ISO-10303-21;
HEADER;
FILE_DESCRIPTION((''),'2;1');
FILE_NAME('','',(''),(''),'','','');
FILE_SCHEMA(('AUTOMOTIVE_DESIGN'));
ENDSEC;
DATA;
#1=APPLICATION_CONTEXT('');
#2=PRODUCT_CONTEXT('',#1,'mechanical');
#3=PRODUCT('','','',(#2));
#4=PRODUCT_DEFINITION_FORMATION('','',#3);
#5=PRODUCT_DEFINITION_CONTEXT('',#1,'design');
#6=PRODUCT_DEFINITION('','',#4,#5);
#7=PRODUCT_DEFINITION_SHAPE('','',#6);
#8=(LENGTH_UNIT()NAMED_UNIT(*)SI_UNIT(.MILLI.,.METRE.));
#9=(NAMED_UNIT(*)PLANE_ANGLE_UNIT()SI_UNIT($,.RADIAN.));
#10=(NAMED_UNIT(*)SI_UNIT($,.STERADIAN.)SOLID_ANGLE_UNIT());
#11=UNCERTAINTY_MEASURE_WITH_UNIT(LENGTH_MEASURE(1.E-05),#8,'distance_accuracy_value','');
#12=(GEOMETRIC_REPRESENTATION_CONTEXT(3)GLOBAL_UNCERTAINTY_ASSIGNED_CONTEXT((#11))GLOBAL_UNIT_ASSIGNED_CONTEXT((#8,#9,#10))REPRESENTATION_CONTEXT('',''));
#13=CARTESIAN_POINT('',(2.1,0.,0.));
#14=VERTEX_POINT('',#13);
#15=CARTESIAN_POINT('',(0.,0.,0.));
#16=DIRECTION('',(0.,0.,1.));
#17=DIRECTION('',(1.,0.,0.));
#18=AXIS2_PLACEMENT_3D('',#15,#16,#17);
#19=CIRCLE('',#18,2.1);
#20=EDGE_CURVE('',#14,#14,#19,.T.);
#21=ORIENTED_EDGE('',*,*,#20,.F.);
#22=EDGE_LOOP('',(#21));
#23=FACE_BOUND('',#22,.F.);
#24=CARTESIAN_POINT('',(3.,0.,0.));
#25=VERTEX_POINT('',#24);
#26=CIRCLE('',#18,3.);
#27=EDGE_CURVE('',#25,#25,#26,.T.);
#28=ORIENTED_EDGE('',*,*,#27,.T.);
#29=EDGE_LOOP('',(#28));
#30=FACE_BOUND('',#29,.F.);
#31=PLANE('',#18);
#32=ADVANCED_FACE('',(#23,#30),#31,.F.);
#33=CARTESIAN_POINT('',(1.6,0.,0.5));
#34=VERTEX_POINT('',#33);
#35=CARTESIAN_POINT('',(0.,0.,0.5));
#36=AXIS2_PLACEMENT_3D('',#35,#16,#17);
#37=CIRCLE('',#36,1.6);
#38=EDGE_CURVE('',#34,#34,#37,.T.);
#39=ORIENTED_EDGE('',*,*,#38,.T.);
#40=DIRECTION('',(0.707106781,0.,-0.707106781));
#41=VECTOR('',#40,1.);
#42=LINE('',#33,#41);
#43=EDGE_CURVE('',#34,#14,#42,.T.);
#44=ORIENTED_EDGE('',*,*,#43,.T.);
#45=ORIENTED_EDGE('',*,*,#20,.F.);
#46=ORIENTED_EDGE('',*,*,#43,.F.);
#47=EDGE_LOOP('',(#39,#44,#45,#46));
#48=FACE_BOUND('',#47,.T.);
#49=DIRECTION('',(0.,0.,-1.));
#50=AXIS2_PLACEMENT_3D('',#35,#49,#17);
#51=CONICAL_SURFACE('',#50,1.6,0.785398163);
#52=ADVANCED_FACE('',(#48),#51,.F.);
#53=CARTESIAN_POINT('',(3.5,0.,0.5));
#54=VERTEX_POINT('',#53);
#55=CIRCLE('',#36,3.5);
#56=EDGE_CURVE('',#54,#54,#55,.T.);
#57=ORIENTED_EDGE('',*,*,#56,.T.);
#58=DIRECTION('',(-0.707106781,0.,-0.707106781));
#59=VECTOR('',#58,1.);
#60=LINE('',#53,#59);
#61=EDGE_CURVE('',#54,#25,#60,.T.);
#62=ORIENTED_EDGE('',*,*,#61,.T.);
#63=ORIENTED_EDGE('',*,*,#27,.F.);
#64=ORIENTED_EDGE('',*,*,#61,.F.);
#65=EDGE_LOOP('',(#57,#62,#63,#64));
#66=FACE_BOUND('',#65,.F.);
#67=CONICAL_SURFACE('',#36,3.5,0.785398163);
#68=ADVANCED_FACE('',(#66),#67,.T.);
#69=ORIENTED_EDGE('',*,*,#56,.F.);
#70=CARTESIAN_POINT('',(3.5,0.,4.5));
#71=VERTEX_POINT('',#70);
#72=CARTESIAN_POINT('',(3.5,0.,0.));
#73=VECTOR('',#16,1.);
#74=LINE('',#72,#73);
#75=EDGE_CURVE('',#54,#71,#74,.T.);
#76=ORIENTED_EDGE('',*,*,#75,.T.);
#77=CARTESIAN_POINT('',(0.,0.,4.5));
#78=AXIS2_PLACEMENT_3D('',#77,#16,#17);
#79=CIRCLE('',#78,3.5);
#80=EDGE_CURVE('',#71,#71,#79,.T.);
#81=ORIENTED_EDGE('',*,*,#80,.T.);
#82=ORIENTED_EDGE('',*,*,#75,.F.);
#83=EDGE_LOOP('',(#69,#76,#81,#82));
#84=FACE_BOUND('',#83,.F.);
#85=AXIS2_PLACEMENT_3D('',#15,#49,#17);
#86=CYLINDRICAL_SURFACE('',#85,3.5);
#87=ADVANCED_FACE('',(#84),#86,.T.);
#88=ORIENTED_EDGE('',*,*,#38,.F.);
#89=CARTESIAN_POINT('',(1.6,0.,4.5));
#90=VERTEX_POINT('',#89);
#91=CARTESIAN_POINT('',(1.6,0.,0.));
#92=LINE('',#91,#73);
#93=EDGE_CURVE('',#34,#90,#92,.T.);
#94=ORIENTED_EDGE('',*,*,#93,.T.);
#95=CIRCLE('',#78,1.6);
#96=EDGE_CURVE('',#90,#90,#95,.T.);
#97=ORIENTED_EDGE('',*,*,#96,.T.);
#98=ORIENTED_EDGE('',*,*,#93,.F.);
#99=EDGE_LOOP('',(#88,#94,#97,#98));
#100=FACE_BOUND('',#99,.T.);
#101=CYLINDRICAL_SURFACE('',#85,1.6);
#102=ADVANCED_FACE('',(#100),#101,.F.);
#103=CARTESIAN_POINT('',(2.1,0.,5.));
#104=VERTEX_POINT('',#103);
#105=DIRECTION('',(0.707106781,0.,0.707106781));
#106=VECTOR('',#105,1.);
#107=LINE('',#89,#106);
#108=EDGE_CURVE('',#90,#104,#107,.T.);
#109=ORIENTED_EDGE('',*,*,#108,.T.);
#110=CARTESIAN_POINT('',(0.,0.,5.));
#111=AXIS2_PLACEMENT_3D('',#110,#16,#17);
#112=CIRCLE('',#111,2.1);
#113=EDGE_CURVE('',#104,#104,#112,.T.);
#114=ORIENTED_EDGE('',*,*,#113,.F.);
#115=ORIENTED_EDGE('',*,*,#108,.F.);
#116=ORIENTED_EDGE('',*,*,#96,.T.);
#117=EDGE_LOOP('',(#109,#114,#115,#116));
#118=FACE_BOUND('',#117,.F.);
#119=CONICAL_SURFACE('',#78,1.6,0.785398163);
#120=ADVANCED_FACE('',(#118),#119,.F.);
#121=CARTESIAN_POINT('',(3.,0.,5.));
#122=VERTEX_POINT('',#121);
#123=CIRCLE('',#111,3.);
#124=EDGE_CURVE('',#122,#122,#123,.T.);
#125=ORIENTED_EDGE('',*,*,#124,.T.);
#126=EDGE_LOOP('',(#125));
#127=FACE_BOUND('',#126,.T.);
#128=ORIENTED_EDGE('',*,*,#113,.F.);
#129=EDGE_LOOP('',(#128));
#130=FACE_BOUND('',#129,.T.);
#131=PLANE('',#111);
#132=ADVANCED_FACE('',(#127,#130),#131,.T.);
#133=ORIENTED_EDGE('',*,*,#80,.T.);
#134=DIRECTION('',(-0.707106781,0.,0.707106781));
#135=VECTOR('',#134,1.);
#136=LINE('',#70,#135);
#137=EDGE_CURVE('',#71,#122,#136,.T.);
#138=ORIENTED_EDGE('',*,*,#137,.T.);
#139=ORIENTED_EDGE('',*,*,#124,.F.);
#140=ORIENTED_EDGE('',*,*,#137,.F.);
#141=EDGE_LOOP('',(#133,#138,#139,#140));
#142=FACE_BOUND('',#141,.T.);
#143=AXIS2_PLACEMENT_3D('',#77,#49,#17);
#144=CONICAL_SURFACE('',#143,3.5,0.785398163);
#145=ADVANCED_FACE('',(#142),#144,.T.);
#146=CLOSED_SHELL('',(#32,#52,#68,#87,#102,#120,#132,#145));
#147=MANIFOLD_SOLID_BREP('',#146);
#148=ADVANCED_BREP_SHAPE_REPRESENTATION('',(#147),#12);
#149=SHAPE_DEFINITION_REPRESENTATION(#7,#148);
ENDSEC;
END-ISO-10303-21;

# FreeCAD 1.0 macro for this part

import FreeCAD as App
import Part
import Sketcher
Q = App.Units.Quantity


def edges_at(feature, points):
    """Names of the edges that pass closest to the given points."""
    edges = feature.Shape.Edges
    near = lambda p: min(range(len(edges)), key=lambda i: edges[i].distToShape(Part.Vertex(*p))[0])
    return sorted({f"Edge{near(p) + 1}" for p in points})

doc = App.newDocument("Part")
params = doc.addObject("Spreadsheet::Sheet", "Params")
for row, (alias, value) in enumerate([
    ("sketch1_diameter", "7 mm"),
    ("sketch1_diameter2", "3.2 mm"),
    ("pad1_length", "5 mm"),
    ("chamfer_size", "0.5 mm"),
], start=1):
    params.set(f"A{row}", alias)
    params.set(f"B{row}", "=" + value)
    params.setAlias(f"B{row}", alias)

body = doc.addObject("PartDesign::Body", "Body")

sketch1 = body.newObject("Sketcher::SketchObject", "Sketch")
sketch1.AttachmentSupport = (doc.getObject("XY_Plane"), [""])
sketch1.MapMode = "FlatFace"
sketch1.addGeometry(Part.Circle(App.Vector(0, 0, 0), App.Vector(0, 0, 1), 3.5), False)
sketch1.addGeometry(Part.Circle(App.Vector(0, 0, 0), App.Vector(0, 0, 1), 1.6), False)
sketch1.addConstraint(Sketcher.Constraint("Coincident", 0, 3, -1, 1))
sketch1.addConstraint(Sketcher.Constraint("Coincident", 1, 3, -1, 1))
sketch1.addConstraint(Sketcher.Constraint("Diameter", 0, Q("7 mm")))
sketch1.addConstraint(Sketcher.Constraint("Diameter", 1, Q("3.2 mm")))
sketch1.setExpression("Constraints[2]", "Params.sketch1_diameter")
sketch1.setExpression("Constraints[3]", "Params.sketch1_diameter2")
pad1 = body.newObject("PartDesign::Pad", "Pad")
pad1.Profile = sketch1
pad1.setExpression("Length", "Params.pad1_length")
doc.recompute()

chamfer = body.newObject("PartDesign::Chamfer", "Chamfer")
chamfer.Base = (pad1, edges_at(pad1, [
    (-3.5, 0, 5),
    (-1.6, 0, 5),
    (-1.6, 0, 0),
    (-3.5, 0, 0),
]))
chamfer.setExpression("Size", "Params.chamfer_size")

doc.recompute()
